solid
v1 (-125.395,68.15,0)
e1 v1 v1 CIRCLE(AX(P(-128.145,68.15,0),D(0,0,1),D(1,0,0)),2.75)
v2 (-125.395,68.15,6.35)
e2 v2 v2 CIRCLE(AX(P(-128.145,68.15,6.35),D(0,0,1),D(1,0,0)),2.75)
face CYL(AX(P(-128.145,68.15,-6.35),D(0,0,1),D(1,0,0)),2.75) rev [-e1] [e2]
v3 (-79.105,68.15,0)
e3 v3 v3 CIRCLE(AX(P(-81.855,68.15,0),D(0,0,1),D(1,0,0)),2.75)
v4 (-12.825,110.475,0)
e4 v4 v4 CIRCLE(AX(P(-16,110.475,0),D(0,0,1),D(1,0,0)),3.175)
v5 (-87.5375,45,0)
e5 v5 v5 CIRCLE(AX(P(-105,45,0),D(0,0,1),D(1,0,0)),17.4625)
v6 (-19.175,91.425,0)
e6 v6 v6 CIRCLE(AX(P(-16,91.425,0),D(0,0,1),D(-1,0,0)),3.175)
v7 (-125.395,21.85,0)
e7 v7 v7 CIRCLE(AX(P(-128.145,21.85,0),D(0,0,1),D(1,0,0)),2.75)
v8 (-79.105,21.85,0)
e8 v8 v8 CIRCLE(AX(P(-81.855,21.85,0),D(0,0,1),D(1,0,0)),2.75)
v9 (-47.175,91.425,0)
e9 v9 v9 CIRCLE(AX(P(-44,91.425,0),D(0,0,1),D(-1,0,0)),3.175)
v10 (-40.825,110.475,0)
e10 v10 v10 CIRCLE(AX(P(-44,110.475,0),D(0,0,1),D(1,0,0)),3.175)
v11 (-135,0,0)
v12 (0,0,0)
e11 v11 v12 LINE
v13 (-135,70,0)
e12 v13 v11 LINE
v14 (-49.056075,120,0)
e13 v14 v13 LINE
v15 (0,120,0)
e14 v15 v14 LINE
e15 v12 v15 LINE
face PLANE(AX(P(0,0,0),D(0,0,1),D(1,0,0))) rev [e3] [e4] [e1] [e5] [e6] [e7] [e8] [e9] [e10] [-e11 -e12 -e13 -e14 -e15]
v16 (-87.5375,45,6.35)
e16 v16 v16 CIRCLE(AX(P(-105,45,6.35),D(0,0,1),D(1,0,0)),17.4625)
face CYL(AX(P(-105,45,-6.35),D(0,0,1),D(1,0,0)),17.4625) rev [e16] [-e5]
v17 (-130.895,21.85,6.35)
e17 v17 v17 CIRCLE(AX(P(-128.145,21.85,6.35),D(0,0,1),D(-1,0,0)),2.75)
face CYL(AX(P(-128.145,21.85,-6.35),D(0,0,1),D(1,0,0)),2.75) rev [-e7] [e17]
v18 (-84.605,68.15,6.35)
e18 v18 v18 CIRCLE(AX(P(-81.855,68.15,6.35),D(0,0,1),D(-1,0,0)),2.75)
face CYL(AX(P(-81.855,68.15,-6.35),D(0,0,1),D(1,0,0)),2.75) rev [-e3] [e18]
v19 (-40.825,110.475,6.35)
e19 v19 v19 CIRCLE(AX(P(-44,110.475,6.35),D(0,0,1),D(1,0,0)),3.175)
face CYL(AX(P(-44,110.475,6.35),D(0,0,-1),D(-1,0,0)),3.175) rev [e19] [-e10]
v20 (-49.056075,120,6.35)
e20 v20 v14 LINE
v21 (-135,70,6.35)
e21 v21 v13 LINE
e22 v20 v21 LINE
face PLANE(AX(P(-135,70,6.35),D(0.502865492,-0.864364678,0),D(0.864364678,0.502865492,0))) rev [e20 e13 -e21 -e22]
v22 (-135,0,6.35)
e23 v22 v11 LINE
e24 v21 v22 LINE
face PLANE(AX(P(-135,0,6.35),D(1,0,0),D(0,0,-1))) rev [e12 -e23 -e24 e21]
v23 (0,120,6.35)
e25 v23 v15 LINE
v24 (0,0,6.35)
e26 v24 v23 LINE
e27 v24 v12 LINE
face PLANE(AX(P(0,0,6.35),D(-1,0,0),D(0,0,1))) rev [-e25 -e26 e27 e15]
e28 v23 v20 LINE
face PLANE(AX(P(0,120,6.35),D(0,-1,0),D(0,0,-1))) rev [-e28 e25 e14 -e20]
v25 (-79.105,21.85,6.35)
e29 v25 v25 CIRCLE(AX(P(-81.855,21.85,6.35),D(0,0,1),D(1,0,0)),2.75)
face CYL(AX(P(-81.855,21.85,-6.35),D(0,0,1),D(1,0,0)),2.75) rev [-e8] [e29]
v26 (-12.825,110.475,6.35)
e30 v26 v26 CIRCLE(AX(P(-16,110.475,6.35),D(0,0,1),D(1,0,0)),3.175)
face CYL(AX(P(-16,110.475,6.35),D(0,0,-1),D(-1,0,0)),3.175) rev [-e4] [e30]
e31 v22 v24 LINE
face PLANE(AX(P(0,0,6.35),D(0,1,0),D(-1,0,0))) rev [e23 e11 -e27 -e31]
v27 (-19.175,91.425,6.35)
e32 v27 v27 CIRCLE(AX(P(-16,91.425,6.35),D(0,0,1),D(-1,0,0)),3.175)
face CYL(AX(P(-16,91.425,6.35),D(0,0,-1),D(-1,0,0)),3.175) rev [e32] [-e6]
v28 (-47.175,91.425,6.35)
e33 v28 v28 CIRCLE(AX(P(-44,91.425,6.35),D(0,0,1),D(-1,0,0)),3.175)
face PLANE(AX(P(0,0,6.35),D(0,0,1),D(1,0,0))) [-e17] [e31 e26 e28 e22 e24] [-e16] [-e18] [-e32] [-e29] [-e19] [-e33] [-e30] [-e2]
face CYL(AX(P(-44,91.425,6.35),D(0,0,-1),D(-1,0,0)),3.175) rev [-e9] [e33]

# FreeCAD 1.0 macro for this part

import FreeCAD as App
import Part
import Sketcher

V = App.Vector


def add_polygon(sketch, points):
    """Adds a closed chain of lines whose ends are joined by coincident constraints."""
    first, n = sketch.GeometryCount, len(points)
    for a, b in zip(points, points[1:] + points[:1]):
        sketch.addGeometry(Part.LineSegment(App.Vector(*a, 0), App.Vector(*b, 0)), False)
    for i in range(n):
        sketch.addConstraint(Sketcher.Constraint("Coincident", first + i, 2, first + (i + 1) % n, 1))

doc = App.newDocument("Part")
body = doc.addObject("PartDesign::Body", "Body")

sketch1 = body.newObject("Sketcher::SketchObject", "Sketch")
sketch1.AttachmentSupport = (doc.getObject("XY_Plane"), [""])
sketch1.MapMode = "FlatFace"
add_polygon(sketch1, [(-135, 0), (0, 0), (0, 120), (-49.056075, 120), (-135, 70)])
sketch1.addGeometry(Part.Circle(V(-16, 91.425, 0), V(0, 0, 1), 3.175), False)
sketch1.addGeometry(Part.Circle(V(-44, 91.425, 0), V(0, 0, 1), 3.175), False)
sketch1.addGeometry(Part.Circle(V(-16, 110.475, 0), V(0, 0, 1), 3.175), False)
sketch1.addGeometry(Part.Circle(V(-44, 110.475, 0), V(0, 0, 1), 3.175), False)
sketch1.addConstraint([
    Sketcher.Constraint("Horizontal", 0),
    Sketcher.Constraint("Vertical", 1),
    Sketcher.Constraint("Horizontal", 2),
    Sketcher.Constraint("Vertical", 4),
    Sketcher.Constraint("Coincident", 0, 2, -1, 1),
    Sketcher.Constraint("Equal", 5, 6),
    Sketcher.Constraint("Equal", 6, 7),
    Sketcher.Constraint("Equal", 7, 8),
    Sketcher.Constraint("Horizontal", 5, 3, 6, 3),
    Sketcher.Constraint("Horizontal", 7, 3, 8, 3),
    Sketcher.Constraint("Vertical", 5, 3, 7, 3),
    Sketcher.Constraint("Vertical", 6, 3, 8, 3),
    Sketcher.Constraint("Diameter", 5, 6.35),
    Sketcher.Constraint("DistanceX", 0, 1, 0, 2, 135.0),
    Sketcher.Constraint("DistanceY", 1, 1, 1, 2, 120.0),
    Sketcher.Constraint("DistanceY", 4, 2, 4, 1, 70.0),
    Sketcher.Constraint("DistanceX", 5, 3, -1, 1, 16.0),
    Sketcher.Constraint("DistanceX", 6, 3, -1, 1, 44.0),
    Sketcher.Constraint("DistanceY", 5, 3, 7, 3, 19.05),
    Sketcher.Constraint("DistanceY", -1, 1, 5, 3, 91.425),
    Sketcher.Constraint("DistanceX", 2, 2, 2, 1, 49.056075),
])
pad1 = body.newObject("PartDesign::Pad", "Pad")
pad1.Profile = sketch1
pad1.Length = 6.35

sketch2 = body.newObject("Sketcher::SketchObject", "Sketch001")
sketch2.AttachmentSupport = (doc.getObject("XY_Plane"), [""])
sketch2.MapMode = "FlatFace"
sketch2.AttachmentOffset = App.Placement(V(0, 0, 6.35), App.Rotation())
sketch2.addGeometry([
    Part.Circle(V(-128.145, 68.15, 0), V(0, 0, 1), 2.75),
    Part.Circle(V(-128.145, 21.85, 0), V(0, 0, 1), 2.75),
    Part.Circle(V(-81.855, 21.85, 0), V(0, 0, 1), 2.75),
    Part.Circle(V(-81.855, 68.15, 0), V(0, 0, 1), 2.75),
    Part.Circle(V(-105, 45, 0), V(0, 0, 1), 17.4625),
], False)
sketch2.addConstraint([
    Sketcher.Constraint("Equal", 0, 1),
    Sketcher.Constraint("Equal", 1, 2),
    Sketcher.Constraint("Equal", 2, 3),
    Sketcher.Constraint("Horizontal", 1, 3, 2, 3),
    Sketcher.Constraint("Horizontal", 0, 3, 3, 3),
    Sketcher.Constraint("Vertical", 0, 3, 1, 3),
    Sketcher.Constraint("Vertical", 2, 3, 3, 3),
    Sketcher.Constraint("Diameter", 0, 5.5),
    Sketcher.Constraint("Diameter", 4, 34.925),
    Sketcher.Constraint("DistanceX", 4, 3, -1, 1, 105.0),
    Sketcher.Constraint("DistanceY", -1, 1, 4, 3, 45.0),
    Sketcher.Constraint("DistanceY", 1, 3, 0, 3, 46.3),
    Sketcher.Constraint("DistanceY", -1, 1, 0, 3, 68.15),
    Sketcher.Constraint("DistanceX", 1, 3, 2, 3, 46.29),
    Sketcher.Constraint("DistanceX", 0, 3, -1, 1, 128.145),
])
pocket1 = body.newObject("PartDesign::Pocket", "Pocket")
pocket1.Profile = sketch2
pocket1.Length = 12.7

doc.recompute()
